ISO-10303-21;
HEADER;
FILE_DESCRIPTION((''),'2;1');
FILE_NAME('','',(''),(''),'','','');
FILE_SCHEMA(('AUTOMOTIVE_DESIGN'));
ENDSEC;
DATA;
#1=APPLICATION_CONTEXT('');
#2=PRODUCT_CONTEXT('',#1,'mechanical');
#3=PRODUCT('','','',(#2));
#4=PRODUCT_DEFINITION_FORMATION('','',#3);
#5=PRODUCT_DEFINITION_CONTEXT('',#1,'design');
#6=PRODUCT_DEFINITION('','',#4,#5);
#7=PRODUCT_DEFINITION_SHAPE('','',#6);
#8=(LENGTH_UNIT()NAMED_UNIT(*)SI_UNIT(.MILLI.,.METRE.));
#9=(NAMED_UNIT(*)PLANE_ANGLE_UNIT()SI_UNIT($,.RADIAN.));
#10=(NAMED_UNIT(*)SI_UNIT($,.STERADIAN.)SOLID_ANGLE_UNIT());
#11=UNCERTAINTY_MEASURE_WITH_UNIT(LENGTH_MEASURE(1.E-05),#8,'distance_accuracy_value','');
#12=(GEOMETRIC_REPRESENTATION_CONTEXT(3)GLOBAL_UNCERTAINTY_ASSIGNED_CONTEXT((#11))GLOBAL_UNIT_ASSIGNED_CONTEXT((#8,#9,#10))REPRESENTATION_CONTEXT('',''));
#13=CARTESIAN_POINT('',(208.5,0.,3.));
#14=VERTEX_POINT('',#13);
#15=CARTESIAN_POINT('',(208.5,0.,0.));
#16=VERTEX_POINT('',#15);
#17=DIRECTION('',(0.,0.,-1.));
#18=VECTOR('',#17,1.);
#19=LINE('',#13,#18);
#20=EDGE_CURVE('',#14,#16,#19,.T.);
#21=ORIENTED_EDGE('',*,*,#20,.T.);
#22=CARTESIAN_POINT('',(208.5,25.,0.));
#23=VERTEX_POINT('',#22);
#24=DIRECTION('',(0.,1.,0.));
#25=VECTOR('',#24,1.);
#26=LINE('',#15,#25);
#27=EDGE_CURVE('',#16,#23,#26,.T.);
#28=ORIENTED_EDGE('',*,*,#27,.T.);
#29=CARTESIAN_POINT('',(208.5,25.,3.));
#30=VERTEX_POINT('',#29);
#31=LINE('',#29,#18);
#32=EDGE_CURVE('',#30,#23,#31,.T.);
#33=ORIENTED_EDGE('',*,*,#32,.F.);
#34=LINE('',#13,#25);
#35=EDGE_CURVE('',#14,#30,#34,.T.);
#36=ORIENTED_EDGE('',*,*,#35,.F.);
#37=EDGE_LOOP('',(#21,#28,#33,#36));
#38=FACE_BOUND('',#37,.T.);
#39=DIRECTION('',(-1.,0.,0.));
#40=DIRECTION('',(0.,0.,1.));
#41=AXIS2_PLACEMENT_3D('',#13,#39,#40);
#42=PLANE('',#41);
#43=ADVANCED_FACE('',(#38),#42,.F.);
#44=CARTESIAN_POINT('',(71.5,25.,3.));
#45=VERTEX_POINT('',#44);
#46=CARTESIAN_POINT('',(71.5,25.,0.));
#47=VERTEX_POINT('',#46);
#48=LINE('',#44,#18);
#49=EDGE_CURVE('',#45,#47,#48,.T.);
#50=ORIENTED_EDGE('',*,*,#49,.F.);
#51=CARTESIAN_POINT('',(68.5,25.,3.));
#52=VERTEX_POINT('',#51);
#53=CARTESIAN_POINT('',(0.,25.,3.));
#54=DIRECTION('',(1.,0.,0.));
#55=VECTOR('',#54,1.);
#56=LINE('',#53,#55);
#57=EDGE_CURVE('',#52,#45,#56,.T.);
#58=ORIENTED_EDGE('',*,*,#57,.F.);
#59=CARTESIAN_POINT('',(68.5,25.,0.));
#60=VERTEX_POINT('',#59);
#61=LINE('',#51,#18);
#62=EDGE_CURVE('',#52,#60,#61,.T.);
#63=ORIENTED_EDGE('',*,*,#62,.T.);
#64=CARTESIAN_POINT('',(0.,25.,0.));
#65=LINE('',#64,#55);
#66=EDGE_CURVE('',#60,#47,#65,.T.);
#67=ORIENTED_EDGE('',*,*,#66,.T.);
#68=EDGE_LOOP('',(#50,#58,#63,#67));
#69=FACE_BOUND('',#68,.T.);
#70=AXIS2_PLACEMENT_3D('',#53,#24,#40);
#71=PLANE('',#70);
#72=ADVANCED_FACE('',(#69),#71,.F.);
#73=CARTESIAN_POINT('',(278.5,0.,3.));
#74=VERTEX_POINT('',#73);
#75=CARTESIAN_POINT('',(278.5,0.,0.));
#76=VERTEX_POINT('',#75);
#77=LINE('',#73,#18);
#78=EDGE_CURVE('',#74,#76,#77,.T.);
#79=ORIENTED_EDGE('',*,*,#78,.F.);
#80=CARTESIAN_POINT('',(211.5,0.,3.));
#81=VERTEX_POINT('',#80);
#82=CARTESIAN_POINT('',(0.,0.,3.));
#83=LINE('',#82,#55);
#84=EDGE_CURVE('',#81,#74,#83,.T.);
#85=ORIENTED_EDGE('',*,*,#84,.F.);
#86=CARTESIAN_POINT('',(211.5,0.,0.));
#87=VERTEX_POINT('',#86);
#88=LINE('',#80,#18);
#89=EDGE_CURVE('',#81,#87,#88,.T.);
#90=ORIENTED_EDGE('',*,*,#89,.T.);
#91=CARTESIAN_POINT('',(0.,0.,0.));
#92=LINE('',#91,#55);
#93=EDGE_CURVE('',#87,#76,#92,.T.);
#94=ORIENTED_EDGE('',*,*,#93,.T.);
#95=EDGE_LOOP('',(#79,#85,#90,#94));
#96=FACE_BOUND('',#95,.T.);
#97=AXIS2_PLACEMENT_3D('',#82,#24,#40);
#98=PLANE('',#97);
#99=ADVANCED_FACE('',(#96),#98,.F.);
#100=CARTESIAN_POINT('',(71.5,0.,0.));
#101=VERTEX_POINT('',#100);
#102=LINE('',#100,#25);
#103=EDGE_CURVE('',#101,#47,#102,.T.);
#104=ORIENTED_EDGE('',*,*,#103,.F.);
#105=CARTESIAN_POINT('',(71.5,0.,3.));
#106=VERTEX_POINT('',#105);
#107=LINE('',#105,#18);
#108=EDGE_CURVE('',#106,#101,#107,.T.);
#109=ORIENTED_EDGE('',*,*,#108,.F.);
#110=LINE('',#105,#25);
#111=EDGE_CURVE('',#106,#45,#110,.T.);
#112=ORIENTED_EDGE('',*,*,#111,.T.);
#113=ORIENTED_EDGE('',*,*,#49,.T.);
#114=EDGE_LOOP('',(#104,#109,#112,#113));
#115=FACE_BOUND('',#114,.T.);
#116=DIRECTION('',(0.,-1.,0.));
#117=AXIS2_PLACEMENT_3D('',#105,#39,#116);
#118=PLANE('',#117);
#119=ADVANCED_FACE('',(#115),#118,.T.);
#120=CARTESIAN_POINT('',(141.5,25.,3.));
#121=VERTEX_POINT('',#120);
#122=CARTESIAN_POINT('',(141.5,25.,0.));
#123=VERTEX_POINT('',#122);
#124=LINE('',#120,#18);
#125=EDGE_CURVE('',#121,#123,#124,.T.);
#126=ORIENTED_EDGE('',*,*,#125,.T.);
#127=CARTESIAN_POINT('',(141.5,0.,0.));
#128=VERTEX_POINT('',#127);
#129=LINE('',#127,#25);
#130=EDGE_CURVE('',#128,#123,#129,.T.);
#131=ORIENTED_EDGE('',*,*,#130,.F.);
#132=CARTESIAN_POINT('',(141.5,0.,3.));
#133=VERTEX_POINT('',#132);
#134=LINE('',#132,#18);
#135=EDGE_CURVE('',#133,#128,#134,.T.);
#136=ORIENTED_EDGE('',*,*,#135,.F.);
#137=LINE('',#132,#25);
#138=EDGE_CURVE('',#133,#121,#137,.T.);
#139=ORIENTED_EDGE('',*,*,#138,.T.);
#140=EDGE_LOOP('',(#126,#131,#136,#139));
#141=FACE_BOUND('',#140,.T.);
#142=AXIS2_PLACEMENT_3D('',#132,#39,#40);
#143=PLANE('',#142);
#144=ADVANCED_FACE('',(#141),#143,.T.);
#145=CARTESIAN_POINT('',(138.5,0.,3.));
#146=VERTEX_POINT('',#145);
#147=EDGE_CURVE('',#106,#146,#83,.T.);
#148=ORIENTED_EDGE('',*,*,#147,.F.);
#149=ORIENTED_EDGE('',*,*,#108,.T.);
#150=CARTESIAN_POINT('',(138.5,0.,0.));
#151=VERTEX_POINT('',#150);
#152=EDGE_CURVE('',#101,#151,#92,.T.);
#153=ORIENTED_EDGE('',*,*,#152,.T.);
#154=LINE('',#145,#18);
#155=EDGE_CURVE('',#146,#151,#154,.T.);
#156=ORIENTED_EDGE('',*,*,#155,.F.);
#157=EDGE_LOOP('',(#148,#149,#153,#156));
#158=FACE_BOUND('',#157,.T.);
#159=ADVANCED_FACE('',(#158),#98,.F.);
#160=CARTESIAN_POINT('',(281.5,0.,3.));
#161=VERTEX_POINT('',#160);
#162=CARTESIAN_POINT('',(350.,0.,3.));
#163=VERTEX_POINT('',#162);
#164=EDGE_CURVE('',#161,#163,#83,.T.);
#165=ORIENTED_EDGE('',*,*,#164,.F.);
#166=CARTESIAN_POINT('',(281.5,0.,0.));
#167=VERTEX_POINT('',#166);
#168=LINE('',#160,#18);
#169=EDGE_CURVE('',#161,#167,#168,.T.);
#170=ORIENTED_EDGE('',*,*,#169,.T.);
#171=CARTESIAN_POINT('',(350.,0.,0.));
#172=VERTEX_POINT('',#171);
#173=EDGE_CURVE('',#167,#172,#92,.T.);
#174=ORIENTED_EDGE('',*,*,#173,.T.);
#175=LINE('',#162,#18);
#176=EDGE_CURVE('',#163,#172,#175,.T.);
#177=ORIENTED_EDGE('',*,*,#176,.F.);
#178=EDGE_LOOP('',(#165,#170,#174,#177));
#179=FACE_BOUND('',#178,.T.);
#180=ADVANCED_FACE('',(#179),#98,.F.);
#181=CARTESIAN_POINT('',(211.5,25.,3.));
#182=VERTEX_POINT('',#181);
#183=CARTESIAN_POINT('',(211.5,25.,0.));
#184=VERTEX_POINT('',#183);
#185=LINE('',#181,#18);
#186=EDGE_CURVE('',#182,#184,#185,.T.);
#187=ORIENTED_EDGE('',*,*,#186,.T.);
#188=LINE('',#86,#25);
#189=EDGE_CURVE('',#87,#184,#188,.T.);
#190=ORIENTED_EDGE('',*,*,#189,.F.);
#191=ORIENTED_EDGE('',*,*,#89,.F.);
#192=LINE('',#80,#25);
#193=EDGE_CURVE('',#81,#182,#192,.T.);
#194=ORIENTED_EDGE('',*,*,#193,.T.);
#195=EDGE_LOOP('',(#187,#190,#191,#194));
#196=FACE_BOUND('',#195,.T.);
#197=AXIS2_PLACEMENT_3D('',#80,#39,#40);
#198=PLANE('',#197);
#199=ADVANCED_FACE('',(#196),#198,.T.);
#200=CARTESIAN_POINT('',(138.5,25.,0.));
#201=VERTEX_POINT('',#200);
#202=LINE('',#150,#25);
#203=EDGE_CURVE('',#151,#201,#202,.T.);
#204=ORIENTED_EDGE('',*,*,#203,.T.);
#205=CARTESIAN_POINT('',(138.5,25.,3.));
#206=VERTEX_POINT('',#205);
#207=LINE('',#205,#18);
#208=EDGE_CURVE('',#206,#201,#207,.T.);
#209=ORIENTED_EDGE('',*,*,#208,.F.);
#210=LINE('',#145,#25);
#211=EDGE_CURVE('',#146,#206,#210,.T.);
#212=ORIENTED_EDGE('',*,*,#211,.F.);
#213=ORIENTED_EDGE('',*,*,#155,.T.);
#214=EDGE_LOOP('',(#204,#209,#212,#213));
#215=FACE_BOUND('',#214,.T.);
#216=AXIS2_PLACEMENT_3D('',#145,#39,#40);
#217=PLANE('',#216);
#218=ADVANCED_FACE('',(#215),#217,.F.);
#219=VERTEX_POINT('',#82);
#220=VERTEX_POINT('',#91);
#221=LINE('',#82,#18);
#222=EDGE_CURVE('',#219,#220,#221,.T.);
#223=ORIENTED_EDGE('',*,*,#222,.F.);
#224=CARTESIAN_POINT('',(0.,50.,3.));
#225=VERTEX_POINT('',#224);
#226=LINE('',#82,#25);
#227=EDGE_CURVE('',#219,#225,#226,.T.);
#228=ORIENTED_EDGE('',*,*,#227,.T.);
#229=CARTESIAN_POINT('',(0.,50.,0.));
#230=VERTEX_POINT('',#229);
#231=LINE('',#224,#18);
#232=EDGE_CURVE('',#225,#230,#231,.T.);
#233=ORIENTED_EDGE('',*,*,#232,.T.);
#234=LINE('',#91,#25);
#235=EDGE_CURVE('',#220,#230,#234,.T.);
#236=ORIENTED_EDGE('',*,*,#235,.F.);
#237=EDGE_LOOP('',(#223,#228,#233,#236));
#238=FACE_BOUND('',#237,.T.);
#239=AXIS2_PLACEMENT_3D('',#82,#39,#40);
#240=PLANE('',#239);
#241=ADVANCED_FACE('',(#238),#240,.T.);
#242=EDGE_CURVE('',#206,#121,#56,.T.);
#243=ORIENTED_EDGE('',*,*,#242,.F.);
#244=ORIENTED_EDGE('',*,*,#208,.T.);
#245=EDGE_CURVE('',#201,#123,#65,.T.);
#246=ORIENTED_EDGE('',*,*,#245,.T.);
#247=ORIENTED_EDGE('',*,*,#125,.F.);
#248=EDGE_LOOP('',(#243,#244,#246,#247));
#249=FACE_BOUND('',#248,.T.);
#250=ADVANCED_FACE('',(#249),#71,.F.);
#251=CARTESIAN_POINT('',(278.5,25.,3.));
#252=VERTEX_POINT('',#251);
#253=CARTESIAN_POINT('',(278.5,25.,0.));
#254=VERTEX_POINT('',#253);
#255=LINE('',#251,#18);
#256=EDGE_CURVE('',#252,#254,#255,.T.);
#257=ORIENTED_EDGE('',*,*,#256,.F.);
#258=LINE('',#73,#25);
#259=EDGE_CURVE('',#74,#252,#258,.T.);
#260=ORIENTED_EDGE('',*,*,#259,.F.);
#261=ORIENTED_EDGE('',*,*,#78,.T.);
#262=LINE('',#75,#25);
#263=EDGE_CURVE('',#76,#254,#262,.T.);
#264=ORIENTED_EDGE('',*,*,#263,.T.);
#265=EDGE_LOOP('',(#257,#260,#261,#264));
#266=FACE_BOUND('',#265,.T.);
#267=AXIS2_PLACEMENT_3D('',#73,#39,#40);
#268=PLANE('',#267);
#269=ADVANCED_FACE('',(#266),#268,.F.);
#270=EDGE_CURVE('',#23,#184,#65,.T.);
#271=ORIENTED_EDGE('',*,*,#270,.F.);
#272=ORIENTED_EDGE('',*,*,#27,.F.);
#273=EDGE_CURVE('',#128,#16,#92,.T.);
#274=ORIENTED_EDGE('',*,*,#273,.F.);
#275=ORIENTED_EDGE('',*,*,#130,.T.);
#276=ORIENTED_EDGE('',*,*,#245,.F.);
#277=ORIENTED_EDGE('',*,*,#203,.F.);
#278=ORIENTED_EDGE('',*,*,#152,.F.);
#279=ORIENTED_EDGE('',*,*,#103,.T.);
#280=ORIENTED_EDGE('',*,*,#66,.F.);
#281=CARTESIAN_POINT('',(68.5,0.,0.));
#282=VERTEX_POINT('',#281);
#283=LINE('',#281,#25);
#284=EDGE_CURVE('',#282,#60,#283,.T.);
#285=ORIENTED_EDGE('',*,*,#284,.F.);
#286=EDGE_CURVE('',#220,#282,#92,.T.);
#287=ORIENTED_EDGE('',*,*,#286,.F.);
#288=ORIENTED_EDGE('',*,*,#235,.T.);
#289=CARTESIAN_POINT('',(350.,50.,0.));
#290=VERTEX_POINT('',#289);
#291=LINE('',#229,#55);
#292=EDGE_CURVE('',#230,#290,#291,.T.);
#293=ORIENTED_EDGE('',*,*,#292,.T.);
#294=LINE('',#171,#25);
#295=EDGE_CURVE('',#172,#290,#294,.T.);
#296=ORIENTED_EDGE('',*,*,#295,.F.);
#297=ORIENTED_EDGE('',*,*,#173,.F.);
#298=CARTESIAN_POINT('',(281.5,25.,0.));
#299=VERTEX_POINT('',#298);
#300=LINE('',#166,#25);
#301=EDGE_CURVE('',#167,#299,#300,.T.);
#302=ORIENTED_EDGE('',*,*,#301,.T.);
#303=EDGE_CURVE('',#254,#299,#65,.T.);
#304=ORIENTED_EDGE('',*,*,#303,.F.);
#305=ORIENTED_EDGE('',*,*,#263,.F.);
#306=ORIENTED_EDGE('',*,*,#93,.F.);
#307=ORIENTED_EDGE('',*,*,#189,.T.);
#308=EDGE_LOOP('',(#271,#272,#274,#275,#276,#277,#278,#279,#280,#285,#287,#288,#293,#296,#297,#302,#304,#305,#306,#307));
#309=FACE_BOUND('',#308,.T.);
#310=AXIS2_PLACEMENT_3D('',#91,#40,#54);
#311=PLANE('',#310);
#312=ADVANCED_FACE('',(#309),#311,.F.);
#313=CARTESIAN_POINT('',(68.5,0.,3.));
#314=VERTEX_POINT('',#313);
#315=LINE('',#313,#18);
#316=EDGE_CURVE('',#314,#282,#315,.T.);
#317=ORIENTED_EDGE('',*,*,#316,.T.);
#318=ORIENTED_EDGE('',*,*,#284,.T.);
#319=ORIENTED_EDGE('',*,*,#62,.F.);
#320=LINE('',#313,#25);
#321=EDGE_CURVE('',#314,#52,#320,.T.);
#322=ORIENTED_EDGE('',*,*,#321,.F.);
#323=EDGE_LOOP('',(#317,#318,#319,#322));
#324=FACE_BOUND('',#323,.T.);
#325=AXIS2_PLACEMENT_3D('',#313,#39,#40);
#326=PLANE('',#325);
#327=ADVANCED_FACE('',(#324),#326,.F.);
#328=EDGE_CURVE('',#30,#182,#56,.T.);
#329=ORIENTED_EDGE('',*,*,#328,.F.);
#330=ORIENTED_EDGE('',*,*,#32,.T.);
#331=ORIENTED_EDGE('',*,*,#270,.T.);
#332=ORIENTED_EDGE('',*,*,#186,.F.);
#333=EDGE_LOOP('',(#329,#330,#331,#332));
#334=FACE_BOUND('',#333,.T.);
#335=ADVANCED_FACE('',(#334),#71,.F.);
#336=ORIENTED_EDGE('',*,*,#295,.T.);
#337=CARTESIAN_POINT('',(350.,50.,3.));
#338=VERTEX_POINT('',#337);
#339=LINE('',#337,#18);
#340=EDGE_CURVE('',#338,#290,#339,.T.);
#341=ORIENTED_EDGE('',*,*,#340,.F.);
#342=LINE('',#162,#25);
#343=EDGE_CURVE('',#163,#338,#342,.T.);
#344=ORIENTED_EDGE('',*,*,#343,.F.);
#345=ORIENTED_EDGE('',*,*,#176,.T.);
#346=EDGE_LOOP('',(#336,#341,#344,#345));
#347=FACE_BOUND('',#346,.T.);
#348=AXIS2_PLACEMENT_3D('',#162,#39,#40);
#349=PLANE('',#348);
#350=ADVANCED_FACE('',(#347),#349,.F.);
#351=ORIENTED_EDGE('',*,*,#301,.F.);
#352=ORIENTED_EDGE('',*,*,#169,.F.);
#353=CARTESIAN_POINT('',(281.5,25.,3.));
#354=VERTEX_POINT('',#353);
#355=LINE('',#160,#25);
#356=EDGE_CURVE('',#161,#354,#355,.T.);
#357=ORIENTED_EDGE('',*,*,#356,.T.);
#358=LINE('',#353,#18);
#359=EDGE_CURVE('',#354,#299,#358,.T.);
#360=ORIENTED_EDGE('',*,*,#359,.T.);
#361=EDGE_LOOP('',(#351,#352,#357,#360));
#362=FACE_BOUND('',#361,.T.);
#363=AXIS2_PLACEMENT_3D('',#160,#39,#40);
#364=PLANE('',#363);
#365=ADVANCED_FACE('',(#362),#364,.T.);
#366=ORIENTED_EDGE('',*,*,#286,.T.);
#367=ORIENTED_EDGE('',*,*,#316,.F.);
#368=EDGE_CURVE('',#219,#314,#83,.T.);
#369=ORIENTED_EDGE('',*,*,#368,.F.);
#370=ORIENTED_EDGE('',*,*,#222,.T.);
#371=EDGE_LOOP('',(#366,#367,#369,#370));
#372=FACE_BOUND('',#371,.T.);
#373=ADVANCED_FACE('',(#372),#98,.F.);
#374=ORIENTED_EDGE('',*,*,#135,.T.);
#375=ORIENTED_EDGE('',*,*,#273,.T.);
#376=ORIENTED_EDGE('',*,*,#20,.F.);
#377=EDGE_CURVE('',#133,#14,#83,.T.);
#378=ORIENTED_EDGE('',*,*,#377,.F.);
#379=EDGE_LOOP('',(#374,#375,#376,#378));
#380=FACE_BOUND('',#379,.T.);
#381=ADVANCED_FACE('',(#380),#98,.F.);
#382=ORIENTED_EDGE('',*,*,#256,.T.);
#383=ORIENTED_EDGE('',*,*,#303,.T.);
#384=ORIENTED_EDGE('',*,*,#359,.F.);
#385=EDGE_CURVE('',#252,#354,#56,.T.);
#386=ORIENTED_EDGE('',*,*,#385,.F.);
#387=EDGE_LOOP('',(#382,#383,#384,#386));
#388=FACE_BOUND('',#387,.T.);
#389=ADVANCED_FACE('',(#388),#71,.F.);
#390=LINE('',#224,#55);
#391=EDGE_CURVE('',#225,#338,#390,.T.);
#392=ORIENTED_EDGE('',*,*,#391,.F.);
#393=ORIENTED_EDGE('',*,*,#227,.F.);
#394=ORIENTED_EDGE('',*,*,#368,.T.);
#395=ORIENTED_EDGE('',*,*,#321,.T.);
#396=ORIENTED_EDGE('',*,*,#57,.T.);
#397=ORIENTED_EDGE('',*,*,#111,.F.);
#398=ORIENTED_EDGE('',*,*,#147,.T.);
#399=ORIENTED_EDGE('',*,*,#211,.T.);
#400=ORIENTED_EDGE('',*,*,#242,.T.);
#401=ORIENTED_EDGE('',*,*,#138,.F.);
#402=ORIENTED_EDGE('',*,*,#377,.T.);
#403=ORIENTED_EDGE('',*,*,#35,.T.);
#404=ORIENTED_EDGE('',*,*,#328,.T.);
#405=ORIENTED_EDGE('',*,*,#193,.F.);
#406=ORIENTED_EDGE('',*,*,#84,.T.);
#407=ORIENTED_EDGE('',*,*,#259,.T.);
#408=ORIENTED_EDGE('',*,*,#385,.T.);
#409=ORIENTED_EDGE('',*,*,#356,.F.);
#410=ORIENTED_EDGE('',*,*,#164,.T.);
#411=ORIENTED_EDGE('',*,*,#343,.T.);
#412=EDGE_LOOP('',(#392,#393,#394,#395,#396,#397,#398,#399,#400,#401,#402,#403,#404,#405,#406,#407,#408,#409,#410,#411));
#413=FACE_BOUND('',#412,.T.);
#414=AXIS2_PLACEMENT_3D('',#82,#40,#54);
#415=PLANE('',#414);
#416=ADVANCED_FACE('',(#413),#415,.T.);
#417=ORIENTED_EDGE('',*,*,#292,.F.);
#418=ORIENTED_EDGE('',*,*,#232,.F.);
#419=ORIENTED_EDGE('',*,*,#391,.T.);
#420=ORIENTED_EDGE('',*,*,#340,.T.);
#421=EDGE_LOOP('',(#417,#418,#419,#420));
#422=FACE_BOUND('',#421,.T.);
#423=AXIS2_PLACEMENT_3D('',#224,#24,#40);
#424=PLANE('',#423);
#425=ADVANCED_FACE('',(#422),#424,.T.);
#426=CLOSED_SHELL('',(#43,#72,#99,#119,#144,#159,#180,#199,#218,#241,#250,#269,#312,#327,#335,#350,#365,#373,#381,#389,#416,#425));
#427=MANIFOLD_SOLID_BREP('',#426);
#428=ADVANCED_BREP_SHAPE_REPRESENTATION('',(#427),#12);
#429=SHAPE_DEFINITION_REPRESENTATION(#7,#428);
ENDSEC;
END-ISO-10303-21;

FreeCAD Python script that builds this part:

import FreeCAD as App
import Part
import Sketcher

V = App.Vector


def add_polygon(sketch, points):
    """Adds a closed chain of lines whose ends are joined by coincident constraints."""
    first, n = sketch.GeometryCount, len(points)
    for a, b in zip(points, points[1:] + points[:1]):
        sketch.addGeometry(Part.LineSegment(App.Vector(*a, 0), App.Vector(*b, 0)), False)
    for i in range(n):
        sketch.addConstraint(Sketcher.Constraint("Coincident", first + i, 2, first + (i + 1) % n, 1))

doc = App.newDocument("Part")
body = doc.addObject("PartDesign::Body", "Body")

sketch1 = doc.addObject("Sketcher::SketchObject", "Sketch")
body.addObject(sketch1)
sketch1.AttachmentSupport = (doc.XY_Plane, [""])
sketch1.MapMode = "FlatFace"
add_polygon(sketch1, [(0, 50), (0, 0), (68.5, 0), (68.5, 25), (71.5, 25), (71.5, 0), (138.5, 0), (138.5, 25), (141.5, 25), (141.5, 0), (208.5, 0), (208.5, 25), (211.5, 25), (211.5, 0), (278.5, 0), (278.5, 25), (281.5, 25), (281.5, 0), (350, 0), (350, 50)])
sketch1.addConstraint([
    Sketcher.Constraint("Vertical", 0),
    Sketcher.Constraint("Horizontal", 1),
    Sketcher.Constraint("Vertical", 2),
    Sketcher.Constraint("Horizontal", 3),
    Sketcher.Constraint("Vertical", 4),
    Sketcher.Constraint("Horizontal", 5),
    Sketcher.Constraint("Vertical", 6),
    Sketcher.Constraint("Horizontal", 7),
    Sketcher.Constraint("Vertical", 8),
    Sketcher.Constraint("Horizontal", 9),
    Sketcher.Constraint("Vertical", 10),
    Sketcher.Constraint("Horizontal", 11),
    Sketcher.Constraint("Vertical", 12),
    Sketcher.Constraint("Horizontal", 13),
    Sketcher.Constraint("Vertical", 14),
    Sketcher.Constraint("Horizontal", 15),
    Sketcher.Constraint("Vertical", 16),
    Sketcher.Constraint("Horizontal", 17),
    Sketcher.Constraint("Vertical", 18),
    Sketcher.Constraint("Horizontal", 19),
    Sketcher.Constraint("Coincident", 0, 2, -1, 1),
    Sketcher.Constraint("PointOnObject", 4, 2, -1),
    Sketcher.Constraint("PointOnObject", 8, 2, -1),
    Sketcher.Constraint("PointOnObject", 12, 2, -1),
    Sketcher.Constraint("PointOnObject", 16, 2, -1),
    Sketcher.Constraint("Horizontal", 3, 2, 6, 2),
    Sketcher.Constraint("Horizontal", 7, 2, 10, 2),
    Sketcher.Constraint("Horizontal", 11, 2, 14, 2),
    Sketcher.Constraint("Equal", 3, 7),
    Sketcher.Constraint("Equal", 5, 9),
    Sketcher.Constraint("Equal", 7, 11),
    Sketcher.Constraint("Equal", 9, 13),
    Sketcher.Constraint("Equal", 11, 15),
    Sketcher.Constraint("Equal", 1, 17),
    Sketcher.Constraint("DistanceX", 3, 1, 3, 2, 3.0),
    Sketcher.Constraint("DistanceX", 5, 1, 5, 2, 67.0),
    Sketcher.Constraint("DistanceX", 19, 2, 19, 1, 350.0),
    Sketcher.Constraint("DistanceY", 0, 2, 0, 1, 50.0),
    Sketcher.Constraint("DistanceY", 2, 1, 2, 2, 25.0),
])
pad1 = doc.addObject("PartDesign::Pad", "Pad")
body.addObject(pad1)
pad1.Profile = sketch1
pad1.Length = 3

doc.recompute()
